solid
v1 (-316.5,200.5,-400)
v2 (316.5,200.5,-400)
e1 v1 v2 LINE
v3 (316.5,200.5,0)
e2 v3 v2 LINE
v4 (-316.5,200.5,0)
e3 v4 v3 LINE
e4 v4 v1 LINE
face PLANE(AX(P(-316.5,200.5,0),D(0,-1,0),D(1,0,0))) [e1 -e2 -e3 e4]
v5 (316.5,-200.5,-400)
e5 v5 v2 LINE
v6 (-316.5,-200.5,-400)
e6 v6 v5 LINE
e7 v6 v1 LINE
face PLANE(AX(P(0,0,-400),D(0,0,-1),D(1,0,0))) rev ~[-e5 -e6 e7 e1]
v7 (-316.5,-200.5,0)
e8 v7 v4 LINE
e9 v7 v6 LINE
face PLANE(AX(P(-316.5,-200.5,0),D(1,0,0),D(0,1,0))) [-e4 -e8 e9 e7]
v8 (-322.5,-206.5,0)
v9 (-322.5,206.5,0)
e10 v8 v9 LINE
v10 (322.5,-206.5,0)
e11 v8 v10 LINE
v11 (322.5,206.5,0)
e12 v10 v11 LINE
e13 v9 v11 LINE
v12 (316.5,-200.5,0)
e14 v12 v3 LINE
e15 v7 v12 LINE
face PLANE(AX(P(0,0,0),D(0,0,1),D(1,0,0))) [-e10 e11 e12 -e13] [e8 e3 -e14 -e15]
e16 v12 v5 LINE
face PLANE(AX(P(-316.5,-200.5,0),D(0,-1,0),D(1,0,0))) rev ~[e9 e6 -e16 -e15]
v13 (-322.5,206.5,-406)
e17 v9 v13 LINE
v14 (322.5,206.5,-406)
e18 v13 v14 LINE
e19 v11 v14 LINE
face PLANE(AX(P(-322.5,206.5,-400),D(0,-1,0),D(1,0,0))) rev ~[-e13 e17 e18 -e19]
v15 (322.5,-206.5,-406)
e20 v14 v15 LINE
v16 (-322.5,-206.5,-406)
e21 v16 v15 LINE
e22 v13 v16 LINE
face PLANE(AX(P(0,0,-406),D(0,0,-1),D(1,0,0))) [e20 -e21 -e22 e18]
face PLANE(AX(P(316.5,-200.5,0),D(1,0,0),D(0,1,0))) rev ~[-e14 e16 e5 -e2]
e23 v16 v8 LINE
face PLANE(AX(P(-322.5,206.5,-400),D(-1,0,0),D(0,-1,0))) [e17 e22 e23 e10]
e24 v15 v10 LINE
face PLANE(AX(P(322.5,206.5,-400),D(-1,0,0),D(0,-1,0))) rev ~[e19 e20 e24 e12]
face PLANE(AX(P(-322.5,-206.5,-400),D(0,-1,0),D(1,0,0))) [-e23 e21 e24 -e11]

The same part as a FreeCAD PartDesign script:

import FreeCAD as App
import Part
import Sketcher

V = App.Vector

doc = App.newDocument("Part")
body = doc.addObject("PartDesign::Body", "Body")

# Sketch on XY plane
sketch1 = body.newObject("Sketcher::SketchObject", "Sketch")
sketch1.AttachmentSupport = (doc.getObject("XY_Plane"), [""])
sketch1.MapMode = "FlatFace"
sketch1.addGeometry([
    Part.LineSegment(V(-322, 206, 0), V(-322, -206, 0)),  # 0
    Part.LineSegment(V(-322, -206, 0), V(322, -206, 0)),  # 1
    Part.LineSegment(V(322, -206, 0), V(322, 206, 0)),  # 2
    Part.LineSegment(V(322, 206, 0), V(-322, 206, 0)),  # 3
    Part.LineSegment(V(316, -200, 0), V(-316, -200, 0)),  # 4
    Part.LineSegment(V(-316, -200, 0), V(-316, 200, 0)),  # 5
    Part.LineSegment(V(-316, 200, 0), V(316, 200, 0)),  # 6
    Part.LineSegment(V(316, 200, 0), V(316, -200, 0)),  # 7
], False)
sketch1.addConstraint([
    Sketcher.Constraint("Coincident", 0, 2, 1, 1),
    Sketcher.Constraint("Coincident", 1, 2, 2, 1),
    Sketcher.Constraint("Coincident", 2, 2, 3, 1),
    Sketcher.Constraint("Coincident", 3, 2, 0, 1),
    Sketcher.Constraint("Coincident", 4, 2, 5, 1),
    Sketcher.Constraint("Coincident", 5, 2, 6, 1),
    Sketcher.Constraint("Coincident", 6, 2, 7, 1),
    Sketcher.Constraint("Coincident", 7, 2, 4, 1),
    Sketcher.Constraint("Vertical", 0),
    Sketcher.Constraint("Horizontal", 1),
    Sketcher.Constraint("Vertical", 2),
    Sketcher.Constraint("Horizontal", 3),
    Sketcher.Constraint("Horizontal", 4),
    Sketcher.Constraint("Vertical", 5),
    Sketcher.Constraint("Horizontal", 6),
    Sketcher.Constraint("Vertical", 7),
    Sketcher.Constraint("Symmetric", 0, 2, 2, 2, -1, 1),
    Sketcher.Constraint("Symmetric", 4, 2, 6, 2, -1, 1),
    Sketcher.Constraint("DistanceX", 1, 1, 1, 2, 645.0),
    Sketcher.Constraint("DistanceX", 4, 2, 4, 1, 633.0),
    Sketcher.Constraint("DistanceY", 0, 2, 0, 1, 413.0),
    Sketcher.Constraint("DistanceY", 5, 1, 5, 2, 401.0),
])
pad1 = body.newObject("PartDesign::Pad", "Pad")
pad1.Profile = sketch1
pad1.Length = 400
pad1.Reversed = True

# Sketch on XY plane
sketch2 = body.newObject("Sketcher::SketchObject", "Sketch001")
sketch2.AttachmentSupport = (doc.getObject("XY_Plane"), [""])
sketch2.MapMode = "FlatFace"
sketch2.AttachmentOffset = App.Placement(V(0, 0, -400), App.Rotation())
sketch2.addGeometry([
    Part.LineSegment(V(-322, -206, 0), V(-322, 206, 0)),
    Part.LineSegment(V(-322, 206, 0), V(322, 206, 0)),
    Part.LineSegment(V(322, 206, 0), V(322, -206, 0)),
    Part.LineSegment(V(322, -206, 0), V(-322, -206, 0)),
], False)
sketch2.addConstraint([
    Sketcher.Constraint("Coincident", 0, 2, 1, 1),
    Sketcher.Constraint("Coincident", 1, 2, 2, 1),
    Sketcher.Constraint("Coincident", 2, 2, 3, 1),
    Sketcher.Constraint("Coincident", 3, 2, 0, 1),
    Sketcher.Constraint("Vertical", 0),
    Sketcher.Constraint("Horizontal", 1),
    Sketcher.Constraint("Vertical", 2),
    Sketcher.Constraint("Horizontal", 3),
    Sketcher.Constraint("Symmetric", 0, 2, 2, 2, -1, 1),
    Sketcher.Constraint("DistanceX", 1, 1, 1, 2, 645.0),
    Sketcher.Constraint("DistanceY", 0, 1, 0, 2, 413.0),
])
pad2 = body.newObject("PartDesign::Pad", "Pad001")
pad2.Profile = sketch2
pad2.Length = 6
pad2.Reversed = True

doc.recompute()
